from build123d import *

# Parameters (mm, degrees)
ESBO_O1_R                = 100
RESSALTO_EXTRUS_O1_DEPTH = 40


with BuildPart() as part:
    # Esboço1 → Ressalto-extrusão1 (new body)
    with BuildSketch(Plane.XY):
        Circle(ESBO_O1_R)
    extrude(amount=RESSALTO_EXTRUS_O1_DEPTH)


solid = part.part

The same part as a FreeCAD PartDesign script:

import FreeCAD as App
import Part
import Sketcher

V = App.Vector

doc = App.newDocument("Part")
params = doc.addObject("Spreadsheet::Sheet", "Params")
for row, (alias, value) in enumerate([
    ("sketch1_diameter", "200 mm"),
    ("pad1_length", "40 mm"),
], start=1):
    params.set(f"A{row}", alias)
    params.set(f"B{row}", "=" + value)
    params.setAlias(f"B{row}", alias)

body = doc.addObject("PartDesign::Body", "Body")

# Sketch on XY plane
sketch1 = body.newObject("Sketcher::SketchObject", "Sketch")
sketch1.AttachmentSupport = (doc.getObject("XY_Plane"), [""])
sketch1.MapMode = "FlatFace"
sketch1.addGeometry(Part.Circle(V(0, 0, 0), V(0, 0, 1), 100), False)
sketch1.addConstraint([
    Sketcher.Constraint("Coincident", 0, 3, -1, 1),
    Sketcher.Constraint("Diameter", 0, 200.0),
])
sketch1.setExpression("Constraints[1]", "Params.sketch1_diameter")
pad1 = body.newObject("PartDesign::Pad", "Pad")
pad1.Profile = sketch1
pad1.setExpression("Length", "Params.pad1_length")

doc.recompute()
